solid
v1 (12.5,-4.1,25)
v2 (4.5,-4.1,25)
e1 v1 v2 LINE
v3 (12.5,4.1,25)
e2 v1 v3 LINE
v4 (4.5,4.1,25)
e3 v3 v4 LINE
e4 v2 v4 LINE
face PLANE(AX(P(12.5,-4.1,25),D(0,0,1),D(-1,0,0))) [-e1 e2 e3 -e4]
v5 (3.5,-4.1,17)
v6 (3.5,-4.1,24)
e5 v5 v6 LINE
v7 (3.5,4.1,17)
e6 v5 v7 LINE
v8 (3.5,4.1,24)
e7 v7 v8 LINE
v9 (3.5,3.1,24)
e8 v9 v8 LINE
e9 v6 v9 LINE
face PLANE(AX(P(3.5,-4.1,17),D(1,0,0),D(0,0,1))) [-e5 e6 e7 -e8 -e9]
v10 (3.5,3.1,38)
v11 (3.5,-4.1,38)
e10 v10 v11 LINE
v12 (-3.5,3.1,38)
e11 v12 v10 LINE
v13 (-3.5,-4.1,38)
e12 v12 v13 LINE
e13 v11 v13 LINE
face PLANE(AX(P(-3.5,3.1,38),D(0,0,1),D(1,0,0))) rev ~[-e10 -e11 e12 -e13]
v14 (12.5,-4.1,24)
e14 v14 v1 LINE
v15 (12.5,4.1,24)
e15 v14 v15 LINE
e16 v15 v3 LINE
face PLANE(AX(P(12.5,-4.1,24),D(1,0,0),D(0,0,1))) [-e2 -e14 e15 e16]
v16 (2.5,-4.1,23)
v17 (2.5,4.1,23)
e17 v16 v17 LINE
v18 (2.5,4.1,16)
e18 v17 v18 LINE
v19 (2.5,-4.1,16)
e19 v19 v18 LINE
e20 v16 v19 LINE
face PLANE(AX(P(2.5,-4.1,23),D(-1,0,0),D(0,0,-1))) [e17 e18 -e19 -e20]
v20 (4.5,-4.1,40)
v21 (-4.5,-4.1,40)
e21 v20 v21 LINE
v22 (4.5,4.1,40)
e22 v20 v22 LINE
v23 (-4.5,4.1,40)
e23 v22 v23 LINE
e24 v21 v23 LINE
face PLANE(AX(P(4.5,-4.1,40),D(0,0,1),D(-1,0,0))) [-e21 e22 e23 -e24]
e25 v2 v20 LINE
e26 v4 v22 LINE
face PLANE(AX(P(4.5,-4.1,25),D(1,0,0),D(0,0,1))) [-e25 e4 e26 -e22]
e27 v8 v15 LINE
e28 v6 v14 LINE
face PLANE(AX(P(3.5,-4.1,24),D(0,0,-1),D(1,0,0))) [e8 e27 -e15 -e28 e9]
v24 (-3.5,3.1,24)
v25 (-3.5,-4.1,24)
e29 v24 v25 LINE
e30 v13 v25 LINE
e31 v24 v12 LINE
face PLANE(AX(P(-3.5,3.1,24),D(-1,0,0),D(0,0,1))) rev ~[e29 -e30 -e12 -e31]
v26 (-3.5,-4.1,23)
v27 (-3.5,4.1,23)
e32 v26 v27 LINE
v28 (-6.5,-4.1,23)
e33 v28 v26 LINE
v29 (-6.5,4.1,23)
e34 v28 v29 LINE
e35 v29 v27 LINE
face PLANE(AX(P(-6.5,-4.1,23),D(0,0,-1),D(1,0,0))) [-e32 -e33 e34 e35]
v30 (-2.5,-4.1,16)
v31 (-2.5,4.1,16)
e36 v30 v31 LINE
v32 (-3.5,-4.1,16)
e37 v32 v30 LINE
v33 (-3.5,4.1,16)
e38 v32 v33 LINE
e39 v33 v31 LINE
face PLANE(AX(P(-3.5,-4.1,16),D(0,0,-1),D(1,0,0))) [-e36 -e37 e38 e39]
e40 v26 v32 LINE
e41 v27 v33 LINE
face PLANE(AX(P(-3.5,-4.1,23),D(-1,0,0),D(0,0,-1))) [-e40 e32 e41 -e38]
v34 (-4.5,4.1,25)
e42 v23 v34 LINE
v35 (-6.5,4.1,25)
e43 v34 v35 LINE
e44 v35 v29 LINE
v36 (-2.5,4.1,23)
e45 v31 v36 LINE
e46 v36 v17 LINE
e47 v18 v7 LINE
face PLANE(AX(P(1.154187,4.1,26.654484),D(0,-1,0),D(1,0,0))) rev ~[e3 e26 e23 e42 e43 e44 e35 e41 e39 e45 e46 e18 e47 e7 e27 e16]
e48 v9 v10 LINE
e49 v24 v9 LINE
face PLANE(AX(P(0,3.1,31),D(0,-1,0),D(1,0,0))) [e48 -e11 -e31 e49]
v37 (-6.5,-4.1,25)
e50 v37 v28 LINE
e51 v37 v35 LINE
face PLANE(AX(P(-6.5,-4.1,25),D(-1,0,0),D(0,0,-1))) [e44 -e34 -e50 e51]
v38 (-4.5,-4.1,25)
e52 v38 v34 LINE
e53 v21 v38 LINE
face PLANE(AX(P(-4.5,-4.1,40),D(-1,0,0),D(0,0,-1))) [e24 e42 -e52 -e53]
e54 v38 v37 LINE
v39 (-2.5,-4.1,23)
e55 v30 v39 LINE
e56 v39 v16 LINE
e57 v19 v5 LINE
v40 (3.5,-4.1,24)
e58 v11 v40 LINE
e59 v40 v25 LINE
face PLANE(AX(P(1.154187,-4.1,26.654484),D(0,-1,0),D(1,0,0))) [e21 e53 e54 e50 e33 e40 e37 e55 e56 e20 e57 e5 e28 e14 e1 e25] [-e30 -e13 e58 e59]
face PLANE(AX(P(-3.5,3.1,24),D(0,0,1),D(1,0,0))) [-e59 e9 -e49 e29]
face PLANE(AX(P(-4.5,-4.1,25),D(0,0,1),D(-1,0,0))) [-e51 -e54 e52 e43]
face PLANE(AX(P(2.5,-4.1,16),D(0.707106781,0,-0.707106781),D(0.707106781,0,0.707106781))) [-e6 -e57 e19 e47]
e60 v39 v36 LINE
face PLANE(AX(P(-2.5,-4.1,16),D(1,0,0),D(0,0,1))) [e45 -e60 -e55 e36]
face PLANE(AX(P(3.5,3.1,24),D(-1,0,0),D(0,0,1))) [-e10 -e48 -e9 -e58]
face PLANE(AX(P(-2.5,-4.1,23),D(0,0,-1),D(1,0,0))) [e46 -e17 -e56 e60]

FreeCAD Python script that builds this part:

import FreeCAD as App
import Part
import Sketcher

V = App.Vector

doc = App.newDocument("Part")
body = doc.addObject("PartDesign::Body", "Body")

sketch1 = body.newObject("Sketcher::SketchObject", "Sketch")
sketch1.AttachmentSupport = (doc.getObject("XZ_Plane"), [""])
sketch1.MapMode = "FlatFace"
sketch1.AttachmentOffset = App.Placement(V(0, 0, 4.5), App.Rotation())
sketch1.addGeometry(Part.LineSegment(V(-4, 38, 0), V(-4, 24, 0)), False)
sketch1.addGeometry(Part.LineSegment(V(-4, 24, 0), V(4, 24, 0)), False)
sketch1.addGeometry(Part.LineSegment(V(4, 24, 0), V(4, 38, 0)), False)
sketch1.addGeometry(Part.LineSegment(V(4, 38, 0), V(-4, 38, 0)), False)
sketch1.addConstraint(Sketcher.Constraint("Coincident", 0, 2, 1, 1))
sketch1.addConstraint(Sketcher.Constraint("Coincident", 1, 2, 2, 1))
sketch1.addConstraint(Sketcher.Constraint("Coincident", 2, 2, 3, 1))
sketch1.addConstraint(Sketcher.Constraint("Coincident", 3, 2, 0, 1))
sketch1.addConstraint(Sketcher.Constraint("Vertical", 0))
sketch1.addConstraint(Sketcher.Constraint("Horizontal", 1))
sketch1.addConstraint(Sketcher.Constraint("Vertical", 2))
sketch1.addConstraint(Sketcher.Constraint("Horizontal", 3))
sketch1.addConstraint(Sketcher.Constraint("DistanceX", 1, 1, 1, 2, 7.0))
sketch1.addConstraint(Sketcher.Constraint("DistanceY", 0, 2, 0, 1, 14.0))
sketch1.addConstraint(Sketcher.Constraint("DistanceY", -1, 1, 0, 2, 24.0))
sketch1.addConstraint(Sketcher.Constraint("DistanceX", 0, 2, -1, 1, 3.5))
pad1 = body.newObject("PartDesign::Pad", "Pad")
pad1.Profile = sketch1
pad1.Length = 10
body2 = doc.addObject("PartDesign::Body", "Body001")
doc.recompute()

body.Placement = App.Placement(V(0, 7.6, 0), App.Rotation(V(0, 0, 1), 0))
boolean = body2.newObject("PartDesign::Boolean", "Boolean")
boolean.Type = "Fuse"
boolean.addObjects([body])
body3 = doc.addObject("PartDesign::Body", "Body002")

sketch2 = body3.newObject("Sketcher::SketchObject", "Sketch001")
sketch2.AttachmentSupport = (doc.getObject("XZ_Plane002"), [""])
sketch2.MapMode = "FlatFace"
sketch2.AttachmentOffset = App.Placement(V(0, 0, 4.5), App.Rotation())
sketch2.addGeometry(Part.LineSegment(V(-6.5, 23, 0), V(-3.5, 23, 0)), False)
sketch2.addGeometry(Part.LineSegment(V(-3.5, 23, 0), V(-3.5, 16, 0)), False)
sketch2.addGeometry(Part.LineSegment(V(-3.5, 16, 0), V(-2.5, 16, 0)), False)
sketch2.addGeometry(Part.LineSegment(V(-2.5, 16, 0), V(-2.5, 23, 0)), False)
sketch2.addGeometry(Part.LineSegment(V(-2.5, 23, 0), V(2.5, 23, 0)), False)
sketch2.addGeometry(Part.LineSegment(V(2.5, 23, 0), V(2.5, 16, 0)), False)
sketch2.addGeometry(Part.LineSegment(V(2.5, 16, 0), V(3.5, 17, 0)), False)
sketch2.addGeometry(Part.LineSegment(V(3.5, 17, 0), V(3.5, 24, 0)), False)
sketch2.addGeometry(Part.LineSegment(V(3.5, 24, 0), V(12.5, 24, 0)), False)
sketch2.addGeometry(Part.LineSegment(V(12.5, 24, 0), V(12.5, 25, 0)), False)
sketch2.addGeometry(Part.LineSegment(V(12.5, 25, 0), V(4.5, 25, 0)), False)
sketch2.addGeometry(Part.LineSegment(V(4.5, 25, 0), V(4.5, 40, 0)), False)
sketch2.addGeometry(Part.LineSegment(V(4.5, 40, 0), V(-4.5, 40, 0)), False)
sketch2.addGeometry(Part.LineSegment(V(-4.5, 40, 0), V(-4.5, 25, 0)), False)
sketch2.addGeometry(Part.LineSegment(V(-4.5, 25, 0), V(-6.5, 25, 0)), False)
sketch2.addGeometry(Part.LineSegment(V(-6.5, 25, 0), V(-6.5, 23, 0)), False)
sketch2.addConstraint(Sketcher.Constraint("Coincident", 0, 2, 1, 1))
sketch2.addConstraint(Sketcher.Constraint("Coincident", 1, 2, 2, 1))
sketch2.addConstraint(Sketcher.Constraint("Coincident", 2, 2, 3, 1))
sketch2.addConstraint(Sketcher.Constraint("Coincident", 3, 2, 4, 1))
sketch2.addConstraint(Sketcher.Constraint("Coincident", 4, 2, 5, 1))
sketch2.addConstraint(Sketcher.Constraint("Coincident", 5, 2, 6, 1))
sketch2.addConstraint(Sketcher.Constraint("Coincident", 6, 2, 7, 1))
sketch2.addConstraint(Sketcher.Constraint("Coincident", 7, 2, 8, 1))
sketch2.addConstraint(Sketcher.Constraint("Coincident", 8, 2, 9, 1))
sketch2.addConstraint(Sketcher.Constraint("Coincident", 9, 2, 10, 1))
sketch2.addConstraint(Sketcher.Constraint("Coincident", 10, 2, 11, 1))
sketch2.addConstraint(Sketcher.Constraint("Coincident", 11, 2, 12, 1))
sketch2.addConstraint(Sketcher.Constraint("Coincident", 12, 2, 13, 1))
sketch2.addConstraint(Sketcher.Constraint("Coincident", 13, 2, 14, 1))
sketch2.addConstraint(Sketcher.Constraint("Coincident", 14, 2, 15, 1))
sketch2.addConstraint(Sketcher.Constraint("Coincident", 15, 2, 0, 1))
sketch2.addConstraint(Sketcher.Constraint("Horizontal", 0))
sketch2.addConstraint(Sketcher.Constraint("Vertical", 1))
sketch2.addConstraint(Sketcher.Constraint("Horizontal", 2))
sketch2.addConstraint(Sketcher.Constraint("Vertical", 3))
sketch2.addConstraint(Sketcher.Constraint("Horizontal", 4))
sketch2.addConstraint(Sketcher.Constraint("Vertical", 5))
sketch2.addConstraint(Sketcher.Constraint("Vertical", 7))
sketch2.addConstraint(Sketcher.Constraint("Horizontal", 8))
sketch2.addConstraint(Sketcher.Constraint("Vertical", 9))
sketch2.addConstraint(Sketcher.Constraint("Horizontal", 10))
sketch2.addConstraint(Sketcher.Constraint("Vertical", 11))
sketch2.addConstraint(Sketcher.Constraint("Horizontal", 12))
sketch2.addConstraint(Sketcher.Constraint("Vertical", 13))
sketch2.addConstraint(Sketcher.Constraint("Horizontal", 14))
sketch2.addConstraint(Sketcher.Constraint("Vertical", 15))
sketch2.addConstraint(Sketcher.Constraint("Symmetric", 2, 2, 5, 2, -2))
sketch2.addConstraint(Sketcher.Constraint("Symmetric", 10, 2, 13, 2, -2))
sketch2.addConstraint(Sketcher.Constraint("Horizontal", 0, 2, 3, 2))
sketch2.addConstraint(Sketcher.Constraint("Equal", 8, 12))
sketch2.addConstraint(Sketcher.Constraint("Equal", 5, 7))
sketch2.addConstraint(Sketcher.Constraint("Equal", 2, 9))
sketch2.addConstraint(Sketcher.Constraint("Equal", 14, 15))
sketch2.addConstraint(Sketcher.Constraint("DistanceX", 0, 1, 0, 2, 3.0))
sketch2.addConstraint(Sketcher.Constraint("DistanceX", 2, 1, 2, 2, 1.0))
sketch2.addConstraint(Sketcher.Constraint("DistanceX", 4, 1, 4, 2, 5.0))
sketch2.addConstraint(Sketcher.Constraint("DistanceX", 8, 1, 8, 2, 9.0))
sketch2.addConstraint(Sketcher.Constraint("DistanceX", 10, 2, 10, 1, 8.0))
sketch2.addConstraint(Sketcher.Constraint("DistanceY", 1, 2, 1, 1, 7.0))
sketch2.addConstraint(Sketcher.Constraint("DistanceY", 11, 1, 11, 2, 15.0))
sketch2.addConstraint(Sketcher.Constraint("DistanceY", -1, 1, 0, 2, 23.0))
pad2 = body3.newObject("PartDesign::Pad", "Pad001")
pad2.Profile = sketch2
pad2.Length = 8.2
pad2.Reversed = True
body4 = doc.addObject("PartDesign::Body", "Body003")
doc.recompute()

body3.Placement = App.Placement(V(0, 0.4, 0), App.Rotation(V(0, 0, 1), 0))
boolean2 = body4.newObject("PartDesign::Boolean", "Boolean001")
boolean2.Type = "Fuse"
boolean2.addObjects([body3])
doc.recompute()

boolean3 = body4.newObject("PartDesign::Boolean", "Boolean002")
boolean3.Type = "Cut"
boolean3.addObjects([body2])

doc.recompute()
